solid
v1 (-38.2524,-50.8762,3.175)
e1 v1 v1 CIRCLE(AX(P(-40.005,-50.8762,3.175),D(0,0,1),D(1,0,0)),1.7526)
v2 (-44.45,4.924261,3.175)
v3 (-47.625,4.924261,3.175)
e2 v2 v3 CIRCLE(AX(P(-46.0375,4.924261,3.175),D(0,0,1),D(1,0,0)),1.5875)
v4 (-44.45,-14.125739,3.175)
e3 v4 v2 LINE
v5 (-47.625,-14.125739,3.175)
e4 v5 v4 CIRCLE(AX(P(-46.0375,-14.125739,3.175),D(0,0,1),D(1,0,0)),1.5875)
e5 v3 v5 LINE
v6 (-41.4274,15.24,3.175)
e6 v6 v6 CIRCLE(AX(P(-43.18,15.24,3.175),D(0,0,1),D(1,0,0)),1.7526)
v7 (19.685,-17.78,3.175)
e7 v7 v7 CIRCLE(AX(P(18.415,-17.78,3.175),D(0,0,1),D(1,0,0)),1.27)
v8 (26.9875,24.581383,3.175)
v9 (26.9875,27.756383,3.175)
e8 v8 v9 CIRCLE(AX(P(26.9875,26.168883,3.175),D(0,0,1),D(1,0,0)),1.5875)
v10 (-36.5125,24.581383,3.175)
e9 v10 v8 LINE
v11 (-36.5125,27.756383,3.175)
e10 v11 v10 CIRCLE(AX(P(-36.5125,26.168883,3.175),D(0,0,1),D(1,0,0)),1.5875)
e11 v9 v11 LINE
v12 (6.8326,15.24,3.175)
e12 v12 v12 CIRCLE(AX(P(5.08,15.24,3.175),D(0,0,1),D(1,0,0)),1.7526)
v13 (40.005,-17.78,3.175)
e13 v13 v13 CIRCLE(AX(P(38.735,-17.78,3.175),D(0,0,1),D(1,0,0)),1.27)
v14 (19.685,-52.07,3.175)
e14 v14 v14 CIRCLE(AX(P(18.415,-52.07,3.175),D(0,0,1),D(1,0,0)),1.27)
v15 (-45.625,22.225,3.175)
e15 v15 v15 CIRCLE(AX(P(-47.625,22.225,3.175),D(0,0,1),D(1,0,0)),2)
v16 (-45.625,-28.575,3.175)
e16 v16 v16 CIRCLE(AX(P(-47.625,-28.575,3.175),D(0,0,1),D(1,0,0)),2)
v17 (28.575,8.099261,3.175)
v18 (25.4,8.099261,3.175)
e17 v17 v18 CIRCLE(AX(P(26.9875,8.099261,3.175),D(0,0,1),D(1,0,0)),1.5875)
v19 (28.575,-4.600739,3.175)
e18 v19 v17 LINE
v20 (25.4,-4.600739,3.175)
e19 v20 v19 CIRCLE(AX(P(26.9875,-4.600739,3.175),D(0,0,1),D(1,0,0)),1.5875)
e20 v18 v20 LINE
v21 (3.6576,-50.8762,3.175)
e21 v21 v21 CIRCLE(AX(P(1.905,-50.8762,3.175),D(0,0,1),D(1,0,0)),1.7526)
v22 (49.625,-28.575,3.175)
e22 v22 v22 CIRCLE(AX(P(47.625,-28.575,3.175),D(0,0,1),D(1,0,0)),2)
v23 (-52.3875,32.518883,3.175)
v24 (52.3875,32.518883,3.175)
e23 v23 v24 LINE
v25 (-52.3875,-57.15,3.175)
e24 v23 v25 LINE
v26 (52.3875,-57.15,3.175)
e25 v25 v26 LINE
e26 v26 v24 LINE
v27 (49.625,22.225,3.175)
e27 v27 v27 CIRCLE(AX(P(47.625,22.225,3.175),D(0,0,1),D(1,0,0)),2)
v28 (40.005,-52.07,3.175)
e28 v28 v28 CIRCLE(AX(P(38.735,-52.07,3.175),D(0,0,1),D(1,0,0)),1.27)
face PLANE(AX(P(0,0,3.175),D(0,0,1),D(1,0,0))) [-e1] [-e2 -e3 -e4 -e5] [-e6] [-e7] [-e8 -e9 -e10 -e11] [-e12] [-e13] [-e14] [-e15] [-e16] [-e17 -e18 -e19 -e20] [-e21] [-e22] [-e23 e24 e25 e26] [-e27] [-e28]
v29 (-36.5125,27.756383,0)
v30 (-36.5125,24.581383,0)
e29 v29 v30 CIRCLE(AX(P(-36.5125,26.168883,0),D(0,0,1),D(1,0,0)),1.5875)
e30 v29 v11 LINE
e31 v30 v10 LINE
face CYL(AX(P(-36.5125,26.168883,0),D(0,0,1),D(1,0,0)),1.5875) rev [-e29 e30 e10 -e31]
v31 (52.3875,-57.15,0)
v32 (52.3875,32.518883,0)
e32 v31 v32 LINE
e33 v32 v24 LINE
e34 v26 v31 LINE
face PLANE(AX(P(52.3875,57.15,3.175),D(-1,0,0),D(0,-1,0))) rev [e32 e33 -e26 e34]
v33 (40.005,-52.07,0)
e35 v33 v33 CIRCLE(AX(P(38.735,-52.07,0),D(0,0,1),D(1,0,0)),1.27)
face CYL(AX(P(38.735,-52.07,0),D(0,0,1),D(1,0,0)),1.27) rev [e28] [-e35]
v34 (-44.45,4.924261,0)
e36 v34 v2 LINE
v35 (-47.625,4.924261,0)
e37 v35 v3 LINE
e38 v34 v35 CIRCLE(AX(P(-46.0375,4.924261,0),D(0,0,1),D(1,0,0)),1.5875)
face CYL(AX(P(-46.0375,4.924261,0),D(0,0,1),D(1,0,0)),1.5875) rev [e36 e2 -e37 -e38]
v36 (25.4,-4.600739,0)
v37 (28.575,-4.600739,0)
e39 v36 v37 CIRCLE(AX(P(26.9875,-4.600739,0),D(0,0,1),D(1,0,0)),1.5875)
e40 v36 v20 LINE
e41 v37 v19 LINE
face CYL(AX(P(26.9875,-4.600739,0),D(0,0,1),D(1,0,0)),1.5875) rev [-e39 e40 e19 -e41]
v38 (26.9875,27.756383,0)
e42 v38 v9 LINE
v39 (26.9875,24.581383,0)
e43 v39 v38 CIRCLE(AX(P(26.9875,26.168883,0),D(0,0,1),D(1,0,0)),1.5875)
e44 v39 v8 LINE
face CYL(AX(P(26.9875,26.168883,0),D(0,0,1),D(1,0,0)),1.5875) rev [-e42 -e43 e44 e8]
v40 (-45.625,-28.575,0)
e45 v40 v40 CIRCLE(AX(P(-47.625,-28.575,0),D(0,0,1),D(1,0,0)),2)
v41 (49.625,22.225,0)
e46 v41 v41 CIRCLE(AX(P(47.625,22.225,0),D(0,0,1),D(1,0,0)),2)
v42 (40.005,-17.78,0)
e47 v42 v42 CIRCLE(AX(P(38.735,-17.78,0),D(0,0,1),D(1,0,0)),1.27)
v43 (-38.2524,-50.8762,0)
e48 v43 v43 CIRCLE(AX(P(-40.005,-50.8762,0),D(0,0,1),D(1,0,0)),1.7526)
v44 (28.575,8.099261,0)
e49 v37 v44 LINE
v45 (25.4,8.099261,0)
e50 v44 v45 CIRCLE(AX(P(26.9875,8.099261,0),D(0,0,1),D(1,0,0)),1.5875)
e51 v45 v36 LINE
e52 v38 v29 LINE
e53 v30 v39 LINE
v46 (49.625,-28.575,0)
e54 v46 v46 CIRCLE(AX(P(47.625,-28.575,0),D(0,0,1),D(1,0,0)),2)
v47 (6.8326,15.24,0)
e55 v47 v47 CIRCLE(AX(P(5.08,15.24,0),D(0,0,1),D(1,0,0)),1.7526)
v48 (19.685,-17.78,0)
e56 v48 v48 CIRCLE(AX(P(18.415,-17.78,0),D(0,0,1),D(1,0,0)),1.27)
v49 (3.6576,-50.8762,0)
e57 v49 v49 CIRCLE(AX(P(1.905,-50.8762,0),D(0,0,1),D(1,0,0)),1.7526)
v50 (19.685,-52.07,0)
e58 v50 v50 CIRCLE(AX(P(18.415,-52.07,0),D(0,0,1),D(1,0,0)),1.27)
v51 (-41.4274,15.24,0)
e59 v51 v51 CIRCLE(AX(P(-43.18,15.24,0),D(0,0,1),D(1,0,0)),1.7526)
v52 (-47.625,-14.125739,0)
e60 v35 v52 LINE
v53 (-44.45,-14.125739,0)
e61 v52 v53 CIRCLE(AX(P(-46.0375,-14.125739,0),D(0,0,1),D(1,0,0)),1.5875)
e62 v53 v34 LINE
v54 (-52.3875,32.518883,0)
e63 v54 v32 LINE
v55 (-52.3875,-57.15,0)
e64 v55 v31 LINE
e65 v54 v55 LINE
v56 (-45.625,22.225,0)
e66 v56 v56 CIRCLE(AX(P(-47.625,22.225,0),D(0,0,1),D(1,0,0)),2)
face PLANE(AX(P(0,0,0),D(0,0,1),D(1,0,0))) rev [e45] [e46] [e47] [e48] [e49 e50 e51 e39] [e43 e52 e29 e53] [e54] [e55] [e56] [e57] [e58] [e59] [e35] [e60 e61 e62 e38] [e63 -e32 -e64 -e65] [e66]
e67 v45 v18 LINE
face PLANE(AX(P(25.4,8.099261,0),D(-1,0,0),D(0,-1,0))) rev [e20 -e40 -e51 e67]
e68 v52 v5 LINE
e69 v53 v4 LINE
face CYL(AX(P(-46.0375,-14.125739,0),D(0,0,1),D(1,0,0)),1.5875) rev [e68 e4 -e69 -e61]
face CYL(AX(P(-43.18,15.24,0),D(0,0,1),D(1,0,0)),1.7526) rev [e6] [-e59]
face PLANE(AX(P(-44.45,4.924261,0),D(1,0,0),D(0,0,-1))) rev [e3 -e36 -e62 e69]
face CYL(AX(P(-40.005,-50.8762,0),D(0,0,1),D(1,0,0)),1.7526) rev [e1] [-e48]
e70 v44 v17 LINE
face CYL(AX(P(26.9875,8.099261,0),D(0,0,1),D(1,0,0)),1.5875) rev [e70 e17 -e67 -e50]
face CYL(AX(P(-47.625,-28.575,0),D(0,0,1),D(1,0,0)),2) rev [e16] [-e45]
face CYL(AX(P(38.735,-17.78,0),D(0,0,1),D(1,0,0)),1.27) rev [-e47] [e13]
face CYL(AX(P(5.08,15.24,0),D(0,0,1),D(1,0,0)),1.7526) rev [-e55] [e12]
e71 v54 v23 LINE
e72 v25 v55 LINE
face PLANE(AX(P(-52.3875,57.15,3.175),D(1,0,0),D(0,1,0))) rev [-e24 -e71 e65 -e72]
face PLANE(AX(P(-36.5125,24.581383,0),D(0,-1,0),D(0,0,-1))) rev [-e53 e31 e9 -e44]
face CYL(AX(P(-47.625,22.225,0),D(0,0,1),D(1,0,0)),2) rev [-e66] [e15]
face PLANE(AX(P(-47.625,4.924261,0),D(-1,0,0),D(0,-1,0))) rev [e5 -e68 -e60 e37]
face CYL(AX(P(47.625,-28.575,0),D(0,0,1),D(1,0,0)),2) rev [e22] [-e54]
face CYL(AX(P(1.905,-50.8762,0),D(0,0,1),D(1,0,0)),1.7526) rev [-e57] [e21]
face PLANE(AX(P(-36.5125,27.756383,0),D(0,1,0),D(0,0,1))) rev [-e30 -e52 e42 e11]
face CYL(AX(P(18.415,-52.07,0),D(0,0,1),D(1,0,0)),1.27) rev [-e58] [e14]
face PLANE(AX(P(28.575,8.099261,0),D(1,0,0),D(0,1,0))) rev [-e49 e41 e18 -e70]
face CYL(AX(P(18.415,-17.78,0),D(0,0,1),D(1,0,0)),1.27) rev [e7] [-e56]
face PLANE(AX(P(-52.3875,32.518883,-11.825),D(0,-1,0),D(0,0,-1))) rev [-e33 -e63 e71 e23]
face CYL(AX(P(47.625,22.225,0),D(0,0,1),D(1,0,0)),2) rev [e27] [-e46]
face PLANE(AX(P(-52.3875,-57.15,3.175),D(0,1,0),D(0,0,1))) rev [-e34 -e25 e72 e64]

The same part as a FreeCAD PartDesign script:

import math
import FreeCAD as App
import Part
import Sketcher
Q = App.Units.Quantity


def add_polygon(sketch, points):
    """Adds a closed chain of lines whose ends are joined by coincident constraints."""
    first, n = sketch.GeometryCount, len(points)
    for a, b in zip(points, points[1:] + points[:1]):
        sketch.addGeometry(Part.LineSegment(App.Vector(*a, 0), App.Vector(*b, 0)), False)
    for i in range(n):
        sketch.addConstraint(Sketcher.Constraint("Coincident", first + i, 2, first + (i + 1) % n, 1))

doc = App.newDocument("Part")
params = doc.addObject("Spreadsheet::Sheet", "Params")
for row, (alias, value) in enumerate([
    ("sketch1_height", "4.5 in"),
    ("sketch1_width", "4.125 in"),
    ("pad1_length", "0.125 in"),
    ("sketch2_diameter", "0.138 in"),
    ("sketch4_diameter", "0.1 in"),
    ("sketch5_width", "4.125 in"),
    ("pocket4_length", "15 mm"),
    ("sketch6_width", "2.5 in"),
    ("sketch6_height", "0.5 in"),
    ("sketch6_radius", "0.0625 in"),
    ("sketch6_height2", "0.75 in"),
], start=1):
    params.set(f"A{row}", alias)
    params.set(f"B{row}", "=" + value)
    params.setAlias(f"B{row}", alias)

body = doc.addObject("PartDesign::Body", "Body")

sketch1 = body.newObject("Sketcher::SketchObject", "Sketch")
sketch1.AttachmentSupport = (doc.getObject("XY_Plane"), [""])
sketch1.MapMode = "FlatFace"
add_polygon(sketch1, [(-52, 57), (-52, -57), (52, -57), (52, 57)])
sketch1.addConstraint([
    Sketcher.Constraint("Vertical", 0),
    Sketcher.Constraint("Horizontal", 1),
    Sketcher.Constraint("Vertical", 2),
    Sketcher.Constraint("Horizontal", 3),
    Sketcher.Constraint("Symmetric", 0, 2, 2, 2, -1, 1),
    Sketcher.Constraint("DistanceY", 0, 2, 0, 1, Q("4.5 in")),
    Sketcher.Constraint("DistanceX", 1, 1, 1, 2, Q("4.125 in")),
])
sketch1.setExpression("Constraints[9]", "Params.sketch1_height")
sketch1.setExpression("Constraints[10]", "Params.sketch1_width")
pad1 = body.newObject("PartDesign::Pad", "Pad")
pad1.Profile = sketch1
pad1.setExpression("Length", "Params.pad1_length")

sketch2 = body.newObject("Sketcher::SketchObject", "Sketch001")
sketch2.AttachmentSupport = (doc.getObject("XY_Plane"), [""])
sketch2.MapMode = "FlatFace"
sketch2.AttachmentOffset = App.Placement(App.Vector(0, 0, 0.125 * 25.4), App.Rotation())
sketch2.addGeometry([
    Part.Circle(App.Vector(-43.2, 15.2, 0), App.Vector(0, 0, 1), 1.8),
    Part.Circle(App.Vector(5.1, 15.2, 0), App.Vector(0, 0, 1), 1.8),
    Part.Circle(App.Vector(-40, -50.9, 0), App.Vector(0, 0, 1), 1.8),
    Part.Circle(App.Vector(1.9, -50.9, 0), App.Vector(0, 0, 1), 1.8),
], False)
sketch2.addConstraint([
    Sketcher.Constraint("Equal", 0, 1),
    Sketcher.Constraint("Equal", 1, 2),
    Sketcher.Constraint("Equal", 2, 3),
    Sketcher.Constraint("Horizontal", 0, 3, 1, 3),
    Sketcher.Constraint("Horizontal", 2, 3, 3, 3),
    Sketcher.Constraint("Diameter", 0, Q("0.138 in")),
    Sketcher.Constraint("DistanceX", 0, 3, -1, 1, Q("1.7 in")),
    Sketcher.Constraint("DistanceY", -1, 1, 0, 3, Q("0.6 in")),
    Sketcher.Constraint("DistanceX", -1, 1, 1, 3, Q("0.2 in")),
    Sketcher.Constraint("DistanceX", 2, 3, 3, 3, Q("1.65 in")),
    Sketcher.Constraint("DistanceX", 2, 3, -1, 1, Q("1.575 in")),
    Sketcher.Constraint("DistanceY", 2, 3, -1, 1, Q("2.003 in")),
])
sketch2.setExpression("Constraints[5]", "Params.sketch2_diameter")
pocket1 = body.newObject("PartDesign::Pocket", "Pocket")
pocket1.Profile = sketch2
pocket1.Type = "ThroughAll"

sketch3 = body.newObject("Sketcher::SketchObject", "Sketch002")
sketch3.AttachmentSupport = (doc.getObject("XY_Plane"), [""])
sketch3.MapMode = "FlatFace"
sketch3.AttachmentOffset = App.Placement(App.Vector(0, 0, 0.125 * 25.4), App.Rotation())
sketch3.addGeometry([
    Part.Circle(App.Vector(-47.6, 22.2, 0), App.Vector(0, 0, 1), 2),
    Part.Circle(App.Vector(47.6, 22.2, 0), App.Vector(0, 0, 1), 2),
    Part.Circle(App.Vector(47.6, -28.6, 0), App.Vector(0, 0, 1), 2),
    Part.Circle(App.Vector(-47.6, -28.6, 0), App.Vector(0, 0, 1), 2),
], False)
sketch3.addConstraint([
    Sketcher.Constraint("Equal", 0, 1),
    Sketcher.Constraint("Equal", 1, 2),
    Sketcher.Constraint("Equal", 2, 3),
    Sketcher.Constraint("Symmetric", 0, 3, 1, 3, -2),
    Sketcher.Constraint("Symmetric", 2, 3, 3, 3, -2),
    Sketcher.Constraint("Vertical", 1, 3, 2, 3),
    Sketcher.Constraint("DistanceY", 2, 3, 1, 3, Q("2 in")),
    Sketcher.Constraint("Diameter", 0, 4.0),
    Sketcher.Constraint("DistanceX", 0, 3, 1, 3, Q("3.75 in")),
    Sketcher.Constraint("DistanceY", -1, 1, 0, 3, Q("0.875 in")),
])
pocket2 = body.newObject("PartDesign::Pocket", "Pocket001")
pocket2.Profile = sketch3
pocket2.Type = "ThroughAll"

sketch4 = body.newObject("Sketcher::SketchObject", "Sketch003")
sketch4.AttachmentSupport = (doc.getObject("XY_Plane"), [""])
sketch4.MapMode = "FlatFace"
sketch4.AttachmentOffset = App.Placement(App.Vector(0, 0, 0.125 * 25.4), App.Rotation())
sketch4.addGeometry([
    Part.Circle(App.Vector(18.4, -17.8, 0), App.Vector(0, 0, 1), 1.3),
    Part.Circle(App.Vector(38.7, -17.8, 0), App.Vector(0, 0, 1), 1.3),
    Part.Circle(App.Vector(38.7, -52.1, 0), App.Vector(0, 0, 1), 1.3),
    Part.Circle(App.Vector(18.4, -52.1, 0), App.Vector(0, 0, 1), 1.3),
], False)
sketch4.addConstraint([
    Sketcher.Constraint("Equal", 0, 1),
    Sketcher.Constraint("Equal", 1, 2),
    Sketcher.Constraint("Equal", 2, 3),
    Sketcher.Constraint("Horizontal", 0, 3, 1, 3),
    Sketcher.Constraint("Horizontal", 2, 3, 3, 3),
    Sketcher.Constraint("Vertical", 1, 3, 2, 3),
    Sketcher.Constraint("Vertical", 0, 3, 3, 3),
    Sketcher.Constraint("Diameter", 0, Q("0.1 in")),
    Sketcher.Constraint("DistanceY", 0, 3, -1, 1, Q("0.7 in")),
    Sketcher.Constraint("DistanceX", 0, 3, 1, 3, Q("0.8 in")),
    Sketcher.Constraint("DistanceY", 2, 3, -1, 1, Q("2.05 in")),
    Sketcher.Constraint("DistanceX", -1, 1, 0, 3, Q("0.725 in")),
])
sketch4.setExpression("Constraints[7]", "Params.sketch4_diameter")
pocket3 = body.newObject("PartDesign::Pocket", "Pocket002")
pocket3.Profile = sketch4
pocket3.Type = "ThroughAll"

sketch5 = body.newObject("Sketcher::SketchObject", "Sketch004")
sketch5.AttachmentSupport = (doc.getObject("XY_Plane"), [""])
sketch5.MapMode = "FlatFace"
sketch5.AttachmentOffset = App.Placement(App.Vector(0, 0, 0.125 * 25.4), App.Rotation())
add_polygon(sketch5, [(-52, 82), (-52, 33), (52, 33), (52, 82)])
sketch5.addConstraint([
    Sketcher.Constraint("Vertical", 0),
    Sketcher.Constraint("Horizontal", 1),
    Sketcher.Constraint("Vertical", 2),
    Sketcher.Constraint("Horizontal", 3),
    Sketcher.Constraint("DistanceX", 1, 1, 1, 2, Q("4.125 in")),
    Sketcher.Constraint("DistanceX", 0, 2, -1, 1, Q("2.0625 in")),
    Sketcher.Constraint("DistanceY", 0, 2, 0, 1, 49.262234),
    Sketcher.Constraint("DistanceY", -1, 1, 0, 2, 32.518883),
])
sketch5.setExpression("Constraints[8]", "Params.sketch5_width")
pocket4 = body.newObject("PartDesign::Pocket", "Pocket003")
pocket4.Profile = sketch5
pocket4.setExpression("Length", "Params.pocket4_length")

sketch6 = body.newObject("Sketcher::SketchObject", "Sketch005")
sketch6.AttachmentSupport = (doc.getObject("XY_Plane"), [""])
sketch6.MapMode = "FlatFace"
sketch6.AttachmentOffset = App.Placement(App.Vector(0, 0, 0.125 * 25.4), App.Rotation())
sketch6.addGeometry([
    Part.LineSegment(App.Vector(-44.5, -14.1, 0), App.Vector(-44.5, 4.9, 0)),
    Part.ArcOfCircle(Part.Circle(App.Vector(-46, 4.9, 0), App.Vector(0, 0, 1), 1.6), math.radians(0), math.radians(180)),
    Part.LineSegment(App.Vector(-47.6, 4.9, 0), App.Vector(-47.6, -14.1, 0)),
    Part.ArcOfCircle(Part.Circle(App.Vector(-46, -14.1, 0), App.Vector(0, 0, 1), 1.6), math.radians(180), math.radians(360)),
    Part.LineSegment(App.Vector(27, 27.8, 0), App.Vector(-36.5, 27.8, 0)),
    Part.ArcOfCircle(Part.Circle(App.Vector(-36.5, 26.2, 0), App.Vector(0, 0, 1), 1.6), math.radians(90), math.radians(270)),
    Part.LineSegment(App.Vector(-36.5, 24.6, 0), App.Vector(27, 24.6, 0)),
    Part.ArcOfCircle(Part.Circle(App.Vector(27, 26.2, 0), App.Vector(0, 0, 1), 1.6), math.radians(-90), math.radians(90)),
    Part.LineSegment(App.Vector(28.6, -4.6, 0), App.Vector(28.6, 8.1, 0)),
    Part.ArcOfCircle(Part.Circle(App.Vector(27, 8.1, 0), App.Vector(0, 0, 1), 1.6), math.radians(0), math.radians(180)),
    Part.LineSegment(App.Vector(25.4, 8.1, 0), App.Vector(25.4, -4.6, 0)),
    Part.ArcOfCircle(Part.Circle(App.Vector(27, -4.6, 0), App.Vector(0, 0, 1), 1.6), math.radians(180), math.radians(360)),
], False)
sketch6.addConstraint([
    Sketcher.Constraint("Tangent", 0, 2, 1, 1),
    Sketcher.Constraint("Tangent", 1, 2, 2, 1),
    Sketcher.Constraint("Tangent", 2, 2, 3, 1),
    Sketcher.Constraint("Tangent", 3, 2, 0, 1),
    Sketcher.Constraint("Tangent", 4, 2, 5, 1),
    Sketcher.Constraint("Tangent", 5, 2, 6, 1),
    Sketcher.Constraint("Tangent", 6, 2, 7, 1),
    Sketcher.Constraint("Tangent", 7, 2, 4, 1),
    Sketcher.Constraint("Tangent", 8, 2, 9, 1),
    Sketcher.Constraint("Tangent", 9, 2, 10, 1),
    Sketcher.Constraint("Tangent", 10, 2, 11, 1),
    Sketcher.Constraint("Tangent", 11, 2, 8, 1),
    Sketcher.Constraint("Vertical", 0),
    Sketcher.Constraint("Vertical", 2),
    Sketcher.Constraint("Horizontal", 4),
    Sketcher.Constraint("Horizontal", 6),
    Sketcher.Constraint("Vertical", 8),
    Sketcher.Constraint("Vertical", 10),
    Sketcher.Constraint("Equal", 3, 5),
    Sketcher.Constraint("Equal", 7, 9),
    Sketcher.Constraint("Vertical", 7, 3, 9, 3),
    Sketcher.Constraint("DistanceX", 4, 2, 4, 1, Q("2.5 in")),
    Sketcher.Constraint("DistanceY", 8, 1, 8, 2, Q("0.5 in")),
    Sketcher.Constraint("DistanceX", -1, 1, 9, 2, Q("1 in")),
    Sketcher.Constraint("Radius", 1, Q("0.0625 in")),
    Sketcher.Constraint("DistanceY", 0, 1, 0, 2, Q("0.75 in")),
    Sketcher.Constraint("DistanceX", 0, 2, -1, 1, Q("1.75 in")),
    Sketcher.Constraint("DistanceY", 1, 3, 9, 3, Q("0.125 in")),
    Sketcher.Constraint("DistanceY", -1, 1, 1, 3, 4.924261),
    Sketcher.Constraint("DistanceY", -1, 1, 5, 3, 26.168883),
])
sketch6.setExpression("Constraints[21]", "Params.sketch6_width")
sketch6.setExpression("Constraints[22]", "Params.sketch6_height")
sketch6.setExpression("Constraints[24]", "Params.sketch6_radius")
sketch6.setExpression("Constraints[25]", "Params.sketch6_height2")
pocket5 = body.newObject("PartDesign::Pocket", "Pocket004")
pocket5.Profile = sketch6
pocket5.Type = "ThroughAll"

doc.recompute()
